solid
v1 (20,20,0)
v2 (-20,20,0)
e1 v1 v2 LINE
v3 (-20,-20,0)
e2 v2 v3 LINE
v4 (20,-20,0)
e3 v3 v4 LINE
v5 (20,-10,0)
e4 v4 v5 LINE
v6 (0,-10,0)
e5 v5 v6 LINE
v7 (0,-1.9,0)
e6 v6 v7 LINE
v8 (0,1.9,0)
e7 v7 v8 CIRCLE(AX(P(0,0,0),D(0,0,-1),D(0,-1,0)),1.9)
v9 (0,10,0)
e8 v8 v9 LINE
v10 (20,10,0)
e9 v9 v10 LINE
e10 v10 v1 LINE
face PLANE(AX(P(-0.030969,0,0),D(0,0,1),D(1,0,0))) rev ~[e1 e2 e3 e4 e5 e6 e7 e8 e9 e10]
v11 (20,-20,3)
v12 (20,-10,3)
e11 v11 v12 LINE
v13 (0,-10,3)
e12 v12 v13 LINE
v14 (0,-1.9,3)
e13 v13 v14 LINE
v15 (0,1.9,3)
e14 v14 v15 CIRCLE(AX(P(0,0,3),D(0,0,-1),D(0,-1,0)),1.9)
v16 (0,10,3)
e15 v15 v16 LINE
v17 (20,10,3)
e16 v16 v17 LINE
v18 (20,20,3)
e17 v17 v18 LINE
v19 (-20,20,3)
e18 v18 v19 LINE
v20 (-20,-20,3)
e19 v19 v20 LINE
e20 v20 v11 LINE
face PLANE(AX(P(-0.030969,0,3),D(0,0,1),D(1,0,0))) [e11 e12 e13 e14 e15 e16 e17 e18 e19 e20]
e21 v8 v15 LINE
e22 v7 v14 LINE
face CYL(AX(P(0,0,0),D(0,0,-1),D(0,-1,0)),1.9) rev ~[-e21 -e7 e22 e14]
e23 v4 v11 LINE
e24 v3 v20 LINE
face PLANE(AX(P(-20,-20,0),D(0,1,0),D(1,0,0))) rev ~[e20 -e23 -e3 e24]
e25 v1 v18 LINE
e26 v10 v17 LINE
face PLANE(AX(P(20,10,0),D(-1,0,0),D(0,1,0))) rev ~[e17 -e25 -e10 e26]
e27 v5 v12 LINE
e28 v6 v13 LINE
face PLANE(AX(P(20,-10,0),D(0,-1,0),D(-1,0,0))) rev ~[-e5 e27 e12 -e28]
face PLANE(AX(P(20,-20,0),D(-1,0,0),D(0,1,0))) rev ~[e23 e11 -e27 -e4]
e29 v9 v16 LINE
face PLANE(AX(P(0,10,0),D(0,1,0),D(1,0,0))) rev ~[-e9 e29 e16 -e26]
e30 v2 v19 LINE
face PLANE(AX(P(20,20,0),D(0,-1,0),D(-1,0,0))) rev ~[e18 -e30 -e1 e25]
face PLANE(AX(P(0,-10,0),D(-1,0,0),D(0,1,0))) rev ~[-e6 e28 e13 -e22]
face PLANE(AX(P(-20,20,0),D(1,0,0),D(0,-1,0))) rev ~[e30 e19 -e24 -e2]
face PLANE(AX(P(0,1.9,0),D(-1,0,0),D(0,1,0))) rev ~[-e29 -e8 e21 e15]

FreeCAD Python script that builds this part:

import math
import FreeCAD as App
import Part
import Sketcher
from FreeCAD import Vector

doc = App.newDocument("Part")
body = doc.addObject("PartDesign::Body", "Body")

# Sketch on XY plane
sketch1 = body.newObject("Sketcher::SketchObject", "Sketch")
sketch1.AttachmentSupport = (doc.getObject("XY_Plane"), [""])
sketch1.MapMode = "FlatFace"
sketch1.addGeometry(Part.LineSegment(Vector(20, 20, 0), Vector(-20, 20, 0)), False)
sketch1.addGeometry(Part.LineSegment(Vector(-20, 20, 0), Vector(-20, -20, 0)), False)
sketch1.addGeometry(Part.LineSegment(Vector(-20, -20, 0), Vector(20, -20, 0)), False)
sketch1.addGeometry(Part.LineSegment(Vector(20, -20, 0), Vector(20, -10, 0)), False)
sketch1.addGeometry(Part.LineSegment(Vector(20, -10, 0), Vector(0, -10, 0)), False)
sketch1.addGeometry(Part.LineSegment(Vector(0, -10, 0), Vector(0, -1.9, 0)), False)
sketch1.addGeometry(Part.ArcOfCircle(Part.Circle(Vector(0, 0, 0), Vector(0, 0, 1), 1.9), math.radians(90), math.radians(270)), False)
sketch1.addGeometry(Part.LineSegment(Vector(0, 1.9, 0), Vector(0, 10, 0)), False)
sketch1.addGeometry(Part.LineSegment(Vector(0, 10, 0), Vector(20, 10, 0)), False)
sketch1.addGeometry(Part.LineSegment(Vector(20, 10, 0), Vector(20, 20, 0)), False)
sketch1.addConstraint(Sketcher.Constraint("Coincident", 0, 2, 1, 1))
sketch1.addConstraint(Sketcher.Constraint("Coincident", 1, 2, 2, 1))
sketch1.addConstraint(Sketcher.Constraint("Coincident", 2, 2, 3, 1))
sketch1.addConstraint(Sketcher.Constraint("Coincident", 3, 2, 4, 1))
sketch1.addConstraint(Sketcher.Constraint("Coincident", 4, 2, 5, 1))
sketch1.addConstraint(Sketcher.Constraint("Coincident", 5, 2, 6, 2))
sketch1.addConstraint(Sketcher.Constraint("Coincident", 6, 1, 7, 1))
sketch1.addConstraint(Sketcher.Constraint("Coincident", 7, 2, 8, 1))
sketch1.addConstraint(Sketcher.Constraint("Coincident", 8, 2, 9, 1))
sketch1.addConstraint(Sketcher.Constraint("Coincident", 9, 2, 0, 1))
sketch1.addConstraint(Sketcher.Constraint("Horizontal", 0))
sketch1.addConstraint(Sketcher.Constraint("Vertical", 1))
sketch1.addConstraint(Sketcher.Constraint("Horizontal", 2))
sketch1.addConstraint(Sketcher.Constraint("Vertical", 3))
sketch1.addConstraint(Sketcher.Constraint("Horizontal", 4))
sketch1.addConstraint(Sketcher.Constraint("Vertical", 5))
sketch1.addConstraint(Sketcher.Constraint("Vertical", 7))
sketch1.addConstraint(Sketcher.Constraint("Horizontal", 8))
sketch1.addConstraint(Sketcher.Constraint("Vertical", 9))
sketch1.addConstraint(Sketcher.Constraint("Coincident", 6, 3, -1, 1))
sketch1.addConstraint(Sketcher.Constraint("Symmetric", 0, 2, 2, 2, -1, 1))
sketch1.addConstraint(Sketcher.Constraint("Symmetric", 4, 2, 7, 2, -1, 1))
sketch1.addConstraint(Sketcher.Constraint("PointOnObject", 4, 2, -2))
sketch1.addConstraint(Sketcher.Constraint("Vertical", 3, 2, 8, 2))
sketch1.addConstraint(Sketcher.Constraint("Equal", 2, 1))
sketch1.addConstraint(Sketcher.Constraint("Radius", 6, 1.9))
sketch1.addConstraint(Sketcher.Constraint("DistanceX", 0, 2, 0, 1, 40.0))
sketch1.addConstraint(Sketcher.Constraint("DistanceY", 3, 1, 3, 2, 10.0))
pad1 = body.newObject("PartDesign::Pad", "Pad")
pad1.Profile = sketch1
pad1.Length = 3

doc.recompute()
